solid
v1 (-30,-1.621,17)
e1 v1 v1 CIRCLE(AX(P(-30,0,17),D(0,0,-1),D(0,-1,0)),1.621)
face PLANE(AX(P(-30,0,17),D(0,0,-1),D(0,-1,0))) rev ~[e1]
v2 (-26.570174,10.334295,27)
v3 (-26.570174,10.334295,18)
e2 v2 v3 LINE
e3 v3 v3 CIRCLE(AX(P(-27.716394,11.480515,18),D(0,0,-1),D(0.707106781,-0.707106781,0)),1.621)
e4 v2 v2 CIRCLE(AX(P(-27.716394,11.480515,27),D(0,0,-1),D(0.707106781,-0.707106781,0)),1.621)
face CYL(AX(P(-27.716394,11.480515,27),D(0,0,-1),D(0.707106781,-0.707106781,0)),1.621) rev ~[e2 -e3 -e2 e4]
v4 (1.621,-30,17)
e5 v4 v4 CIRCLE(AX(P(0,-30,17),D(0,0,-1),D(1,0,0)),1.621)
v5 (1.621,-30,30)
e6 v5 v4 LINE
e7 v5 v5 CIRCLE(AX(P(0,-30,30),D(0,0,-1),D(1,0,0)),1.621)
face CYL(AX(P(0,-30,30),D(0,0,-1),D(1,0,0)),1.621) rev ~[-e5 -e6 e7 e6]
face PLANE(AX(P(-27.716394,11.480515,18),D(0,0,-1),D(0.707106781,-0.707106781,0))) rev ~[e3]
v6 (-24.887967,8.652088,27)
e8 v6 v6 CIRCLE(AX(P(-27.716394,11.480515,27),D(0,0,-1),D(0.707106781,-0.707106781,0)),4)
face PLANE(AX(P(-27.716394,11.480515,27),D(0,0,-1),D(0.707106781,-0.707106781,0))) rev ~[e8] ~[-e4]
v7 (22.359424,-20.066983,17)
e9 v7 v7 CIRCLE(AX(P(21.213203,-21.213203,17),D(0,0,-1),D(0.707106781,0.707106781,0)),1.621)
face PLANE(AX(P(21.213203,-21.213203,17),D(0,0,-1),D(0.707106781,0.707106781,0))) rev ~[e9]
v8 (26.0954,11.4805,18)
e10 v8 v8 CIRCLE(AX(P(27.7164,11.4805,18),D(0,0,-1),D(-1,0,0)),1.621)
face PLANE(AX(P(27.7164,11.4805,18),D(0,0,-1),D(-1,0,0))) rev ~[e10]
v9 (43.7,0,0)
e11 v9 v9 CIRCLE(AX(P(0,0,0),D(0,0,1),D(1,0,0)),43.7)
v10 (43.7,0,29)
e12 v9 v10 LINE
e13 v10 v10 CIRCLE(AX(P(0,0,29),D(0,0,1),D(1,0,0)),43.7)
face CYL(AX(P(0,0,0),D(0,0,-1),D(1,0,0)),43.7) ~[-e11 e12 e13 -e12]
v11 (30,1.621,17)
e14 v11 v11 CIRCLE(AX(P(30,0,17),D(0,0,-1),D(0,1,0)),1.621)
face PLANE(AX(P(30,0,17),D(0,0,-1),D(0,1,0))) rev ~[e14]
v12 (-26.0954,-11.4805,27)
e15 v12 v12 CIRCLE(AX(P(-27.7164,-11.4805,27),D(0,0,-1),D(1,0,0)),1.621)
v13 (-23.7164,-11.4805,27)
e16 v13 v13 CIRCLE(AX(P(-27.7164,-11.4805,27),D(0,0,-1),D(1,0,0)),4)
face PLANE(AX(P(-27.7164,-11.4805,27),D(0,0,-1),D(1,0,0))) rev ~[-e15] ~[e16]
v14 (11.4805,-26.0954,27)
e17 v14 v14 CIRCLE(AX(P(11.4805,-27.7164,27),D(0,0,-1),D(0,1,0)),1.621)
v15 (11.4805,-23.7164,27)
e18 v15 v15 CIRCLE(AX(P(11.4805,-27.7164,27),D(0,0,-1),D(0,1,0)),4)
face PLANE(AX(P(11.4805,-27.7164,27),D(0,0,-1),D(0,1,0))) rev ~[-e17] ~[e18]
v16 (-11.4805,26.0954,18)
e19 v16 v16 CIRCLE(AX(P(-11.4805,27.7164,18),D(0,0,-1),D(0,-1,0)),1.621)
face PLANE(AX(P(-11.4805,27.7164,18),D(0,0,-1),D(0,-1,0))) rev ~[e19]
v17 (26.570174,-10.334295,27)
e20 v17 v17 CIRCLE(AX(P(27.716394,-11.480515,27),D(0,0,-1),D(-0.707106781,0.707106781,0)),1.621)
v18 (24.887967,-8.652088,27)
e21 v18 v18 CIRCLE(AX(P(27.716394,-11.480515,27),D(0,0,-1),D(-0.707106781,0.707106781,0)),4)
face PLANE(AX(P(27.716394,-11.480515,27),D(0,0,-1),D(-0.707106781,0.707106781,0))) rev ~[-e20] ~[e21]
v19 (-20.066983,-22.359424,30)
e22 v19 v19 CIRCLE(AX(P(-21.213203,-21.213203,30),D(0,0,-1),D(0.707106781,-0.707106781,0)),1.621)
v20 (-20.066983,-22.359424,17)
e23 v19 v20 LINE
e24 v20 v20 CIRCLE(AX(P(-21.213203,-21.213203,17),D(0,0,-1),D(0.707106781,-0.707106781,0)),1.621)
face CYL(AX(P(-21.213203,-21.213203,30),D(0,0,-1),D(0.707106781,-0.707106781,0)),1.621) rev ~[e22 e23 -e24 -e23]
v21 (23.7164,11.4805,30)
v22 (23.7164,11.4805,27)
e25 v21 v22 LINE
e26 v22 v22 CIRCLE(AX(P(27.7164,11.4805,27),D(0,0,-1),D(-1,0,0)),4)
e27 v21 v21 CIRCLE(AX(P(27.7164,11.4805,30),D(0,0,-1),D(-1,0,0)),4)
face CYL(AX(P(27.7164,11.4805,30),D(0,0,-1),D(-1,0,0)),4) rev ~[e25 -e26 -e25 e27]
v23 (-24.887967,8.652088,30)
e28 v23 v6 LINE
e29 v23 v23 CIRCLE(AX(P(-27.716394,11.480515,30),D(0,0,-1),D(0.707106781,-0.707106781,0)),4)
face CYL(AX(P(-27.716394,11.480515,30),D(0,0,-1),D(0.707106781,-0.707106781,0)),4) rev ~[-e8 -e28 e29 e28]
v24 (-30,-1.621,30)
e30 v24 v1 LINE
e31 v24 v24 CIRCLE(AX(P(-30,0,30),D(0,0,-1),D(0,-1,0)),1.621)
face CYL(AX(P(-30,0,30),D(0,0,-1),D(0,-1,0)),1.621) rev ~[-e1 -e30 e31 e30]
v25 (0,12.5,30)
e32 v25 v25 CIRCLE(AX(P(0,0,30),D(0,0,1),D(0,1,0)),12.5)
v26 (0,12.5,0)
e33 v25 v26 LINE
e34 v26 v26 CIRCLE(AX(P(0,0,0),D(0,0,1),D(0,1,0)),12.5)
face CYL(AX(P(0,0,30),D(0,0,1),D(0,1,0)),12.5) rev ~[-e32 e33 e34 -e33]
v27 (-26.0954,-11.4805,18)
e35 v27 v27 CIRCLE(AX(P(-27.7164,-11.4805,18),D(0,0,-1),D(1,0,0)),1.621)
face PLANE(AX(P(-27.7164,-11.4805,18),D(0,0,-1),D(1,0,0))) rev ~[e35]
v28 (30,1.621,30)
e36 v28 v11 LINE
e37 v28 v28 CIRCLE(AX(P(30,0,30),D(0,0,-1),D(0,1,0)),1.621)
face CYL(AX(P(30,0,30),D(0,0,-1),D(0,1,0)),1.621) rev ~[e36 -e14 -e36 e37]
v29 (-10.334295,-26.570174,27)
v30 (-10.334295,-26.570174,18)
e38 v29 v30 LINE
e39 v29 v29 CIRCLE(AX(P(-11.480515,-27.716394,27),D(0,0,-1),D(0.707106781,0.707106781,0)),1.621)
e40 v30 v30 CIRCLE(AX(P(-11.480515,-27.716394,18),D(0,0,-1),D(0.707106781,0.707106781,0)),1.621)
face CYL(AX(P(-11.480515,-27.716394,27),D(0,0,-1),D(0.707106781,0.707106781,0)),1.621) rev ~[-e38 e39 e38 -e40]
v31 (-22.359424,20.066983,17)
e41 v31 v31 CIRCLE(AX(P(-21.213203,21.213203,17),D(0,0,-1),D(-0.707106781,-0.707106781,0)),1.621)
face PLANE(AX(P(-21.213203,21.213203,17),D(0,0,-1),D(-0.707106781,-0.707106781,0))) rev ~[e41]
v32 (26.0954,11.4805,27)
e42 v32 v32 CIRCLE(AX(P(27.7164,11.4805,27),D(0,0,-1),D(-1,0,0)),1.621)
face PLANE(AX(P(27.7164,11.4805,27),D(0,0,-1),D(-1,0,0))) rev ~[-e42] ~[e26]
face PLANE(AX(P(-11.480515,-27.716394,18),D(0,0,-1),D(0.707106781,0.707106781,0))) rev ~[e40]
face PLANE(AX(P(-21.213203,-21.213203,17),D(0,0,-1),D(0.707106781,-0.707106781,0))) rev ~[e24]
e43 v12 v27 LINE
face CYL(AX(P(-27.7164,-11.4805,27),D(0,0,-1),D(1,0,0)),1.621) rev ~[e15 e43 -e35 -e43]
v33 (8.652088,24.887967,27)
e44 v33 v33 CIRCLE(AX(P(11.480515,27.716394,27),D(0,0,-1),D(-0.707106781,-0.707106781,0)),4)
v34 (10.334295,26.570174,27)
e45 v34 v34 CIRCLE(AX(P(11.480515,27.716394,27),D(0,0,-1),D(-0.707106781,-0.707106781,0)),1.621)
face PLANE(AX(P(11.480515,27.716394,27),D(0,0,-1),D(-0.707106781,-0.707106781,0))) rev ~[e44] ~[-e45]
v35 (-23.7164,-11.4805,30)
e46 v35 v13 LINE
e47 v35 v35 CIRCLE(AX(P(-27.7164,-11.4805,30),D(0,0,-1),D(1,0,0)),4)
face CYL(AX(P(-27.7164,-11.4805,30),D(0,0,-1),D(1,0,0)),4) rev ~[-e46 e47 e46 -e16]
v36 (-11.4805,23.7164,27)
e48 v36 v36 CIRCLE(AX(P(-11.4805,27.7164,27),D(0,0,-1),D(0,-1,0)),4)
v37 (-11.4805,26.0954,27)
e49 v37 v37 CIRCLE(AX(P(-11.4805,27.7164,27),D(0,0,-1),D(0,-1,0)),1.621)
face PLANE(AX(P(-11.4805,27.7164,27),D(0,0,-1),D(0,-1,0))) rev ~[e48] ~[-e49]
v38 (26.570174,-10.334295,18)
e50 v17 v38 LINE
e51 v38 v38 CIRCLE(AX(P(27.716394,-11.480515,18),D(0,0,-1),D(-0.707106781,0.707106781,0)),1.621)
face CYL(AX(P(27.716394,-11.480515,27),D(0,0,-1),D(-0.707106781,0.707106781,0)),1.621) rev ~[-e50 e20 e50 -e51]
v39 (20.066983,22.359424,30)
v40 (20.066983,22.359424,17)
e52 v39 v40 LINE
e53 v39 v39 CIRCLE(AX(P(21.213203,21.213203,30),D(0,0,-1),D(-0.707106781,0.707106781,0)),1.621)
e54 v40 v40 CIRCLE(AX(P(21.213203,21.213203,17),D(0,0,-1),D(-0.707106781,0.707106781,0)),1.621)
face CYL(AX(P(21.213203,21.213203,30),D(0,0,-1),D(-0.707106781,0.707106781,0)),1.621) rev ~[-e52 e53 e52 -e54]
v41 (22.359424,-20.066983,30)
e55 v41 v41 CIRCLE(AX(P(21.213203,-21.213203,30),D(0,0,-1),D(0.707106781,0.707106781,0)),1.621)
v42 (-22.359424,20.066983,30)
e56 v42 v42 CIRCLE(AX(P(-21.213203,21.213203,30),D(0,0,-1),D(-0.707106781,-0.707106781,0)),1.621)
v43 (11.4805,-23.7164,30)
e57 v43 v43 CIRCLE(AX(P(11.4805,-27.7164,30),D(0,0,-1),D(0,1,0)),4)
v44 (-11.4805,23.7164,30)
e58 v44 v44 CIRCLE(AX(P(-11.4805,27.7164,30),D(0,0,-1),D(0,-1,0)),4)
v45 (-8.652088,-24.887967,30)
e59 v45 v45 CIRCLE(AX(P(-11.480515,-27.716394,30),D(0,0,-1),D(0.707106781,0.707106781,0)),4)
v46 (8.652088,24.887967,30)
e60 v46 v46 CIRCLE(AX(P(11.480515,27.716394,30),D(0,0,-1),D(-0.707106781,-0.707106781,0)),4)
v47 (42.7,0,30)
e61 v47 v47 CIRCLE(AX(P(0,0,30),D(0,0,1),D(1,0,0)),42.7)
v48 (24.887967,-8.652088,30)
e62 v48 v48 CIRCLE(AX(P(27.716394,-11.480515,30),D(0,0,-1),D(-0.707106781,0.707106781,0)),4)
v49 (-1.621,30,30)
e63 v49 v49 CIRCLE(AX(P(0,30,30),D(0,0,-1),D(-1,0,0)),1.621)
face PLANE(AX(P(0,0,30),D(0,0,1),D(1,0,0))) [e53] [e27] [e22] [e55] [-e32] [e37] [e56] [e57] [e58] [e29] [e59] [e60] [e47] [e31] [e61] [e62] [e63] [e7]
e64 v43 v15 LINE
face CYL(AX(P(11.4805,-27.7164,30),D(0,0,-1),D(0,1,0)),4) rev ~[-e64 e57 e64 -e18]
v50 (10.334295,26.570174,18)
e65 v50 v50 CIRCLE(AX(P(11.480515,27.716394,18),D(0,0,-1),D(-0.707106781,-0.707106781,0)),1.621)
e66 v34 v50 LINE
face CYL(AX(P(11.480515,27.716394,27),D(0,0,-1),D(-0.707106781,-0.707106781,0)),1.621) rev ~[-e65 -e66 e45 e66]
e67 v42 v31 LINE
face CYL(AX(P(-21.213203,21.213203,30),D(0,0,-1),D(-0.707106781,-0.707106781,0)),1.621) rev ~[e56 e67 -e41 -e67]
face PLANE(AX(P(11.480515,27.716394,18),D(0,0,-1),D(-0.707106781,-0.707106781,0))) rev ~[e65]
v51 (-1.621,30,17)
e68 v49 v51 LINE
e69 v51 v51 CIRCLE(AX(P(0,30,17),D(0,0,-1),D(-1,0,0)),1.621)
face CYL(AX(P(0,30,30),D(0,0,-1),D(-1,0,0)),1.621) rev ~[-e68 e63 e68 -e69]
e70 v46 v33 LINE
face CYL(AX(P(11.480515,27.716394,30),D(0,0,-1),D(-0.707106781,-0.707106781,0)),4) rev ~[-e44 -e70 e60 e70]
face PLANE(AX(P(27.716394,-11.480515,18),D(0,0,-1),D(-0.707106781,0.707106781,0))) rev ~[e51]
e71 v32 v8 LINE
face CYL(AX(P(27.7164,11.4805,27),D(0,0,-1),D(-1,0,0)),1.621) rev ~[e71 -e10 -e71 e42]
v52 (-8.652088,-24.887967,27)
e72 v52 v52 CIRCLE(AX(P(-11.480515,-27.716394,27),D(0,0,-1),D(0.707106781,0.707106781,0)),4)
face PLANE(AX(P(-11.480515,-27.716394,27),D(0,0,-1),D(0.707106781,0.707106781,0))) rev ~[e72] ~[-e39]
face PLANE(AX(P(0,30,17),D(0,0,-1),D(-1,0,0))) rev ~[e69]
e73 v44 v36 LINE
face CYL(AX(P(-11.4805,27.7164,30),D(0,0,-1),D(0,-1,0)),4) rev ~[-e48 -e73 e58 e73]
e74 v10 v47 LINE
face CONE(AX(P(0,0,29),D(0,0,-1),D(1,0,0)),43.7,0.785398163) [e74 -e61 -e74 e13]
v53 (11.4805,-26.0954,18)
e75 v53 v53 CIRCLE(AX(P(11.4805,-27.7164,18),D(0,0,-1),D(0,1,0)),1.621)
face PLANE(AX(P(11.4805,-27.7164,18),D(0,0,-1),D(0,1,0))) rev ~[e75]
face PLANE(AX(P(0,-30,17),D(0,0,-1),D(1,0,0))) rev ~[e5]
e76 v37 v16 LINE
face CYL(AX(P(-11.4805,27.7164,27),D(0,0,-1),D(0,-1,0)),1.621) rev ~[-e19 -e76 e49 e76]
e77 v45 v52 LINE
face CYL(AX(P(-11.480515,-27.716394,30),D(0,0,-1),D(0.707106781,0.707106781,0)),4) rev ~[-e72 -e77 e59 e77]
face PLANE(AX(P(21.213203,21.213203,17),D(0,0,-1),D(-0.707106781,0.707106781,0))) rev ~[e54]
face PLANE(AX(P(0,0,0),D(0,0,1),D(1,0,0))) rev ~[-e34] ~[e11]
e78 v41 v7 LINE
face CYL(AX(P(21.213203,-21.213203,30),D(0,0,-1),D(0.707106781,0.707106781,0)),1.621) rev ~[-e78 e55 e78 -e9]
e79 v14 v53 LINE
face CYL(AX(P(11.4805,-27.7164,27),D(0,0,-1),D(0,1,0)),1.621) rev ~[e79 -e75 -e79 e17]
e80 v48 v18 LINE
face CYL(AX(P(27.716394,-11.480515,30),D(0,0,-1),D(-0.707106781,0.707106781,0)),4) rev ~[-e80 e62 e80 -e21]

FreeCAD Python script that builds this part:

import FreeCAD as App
import Part
import Sketcher

V = App.Vector


def edges_at(feature, points):
    """Names of the edges that pass closest to the given points."""
    edges = feature.Shape.Edges
    near = lambda p: min(range(len(edges)), key=lambda i: edges[i].distToShape(Part.Vertex(*p))[0])
    return sorted({f"Edge{near(p) + 1}" for p in points})

doc = App.newDocument("Part")
params = doc.addObject("Spreadsheet::Sheet", "Params")
for row, (alias, value) in enumerate([
    ("sketch1_diameter", "87.4 mm"),
    ("pad1_length", "30 mm"),
    ("hole_diameter", "3.242 mm"),
    ("hole_depth", "13 mm"),
    ("sketch3_diameter", "25 mm"),
    ("hole2_diameter", "3.242 mm"),
    ("hole2_depth", "12 mm"),
    ("hole2_cbore_diameter", "8 mm"),
    ("hole2_cbore_depth", "3 mm"),
    ("chamfer_size", "1 mm"),
], start=1):
    params.set(f"A{row}", alias)
    params.set(f"B{row}", "=" + value)
    params.setAlias(f"B{row}", alias)

body = doc.addObject("PartDesign::Body", "Body")

sketch1 = body.newObject("Sketcher::SketchObject", "Sketch")
sketch1.AttachmentSupport = (doc.getObject("XY_Plane"), [""])
sketch1.MapMode = "FlatFace"
sketch1.addGeometry(Part.Circle(V(0, 0, 0), V(0, 0, 1), 44), False)
sketch1.addConstraint(Sketcher.Constraint("Coincident", 0, 3, -1, 1))
sketch1.addConstraint(Sketcher.Constraint("Diameter", 0, 87.4))
sketch1.setExpression("Constraints[1]", "Params.sketch1_diameter")
pad1 = body.newObject("PartDesign::Pad", "Pad")
pad1.Profile = sketch1
pad1.setExpression("Length", "Params.pad1_length")

sketch2 = body.newObject("Sketcher::SketchObject", "Sketch001")
sketch2.AttachmentSupport = (doc.getObject("XY_Plane"), [""])
sketch2.MapMode = "FlatFace"
sketch2.AttachmentOffset = App.Placement(V(0, 0, 30), App.Rotation())
sketch2.addGeometry(Part.Circle(V(-30, 0, 0), V(0, 0, 1), 1.6), False)
sketch2.addConstraint(Sketcher.Constraint("PointOnObject", 0, 3, -1))
sketch2.addConstraint(Sketcher.Constraint("Diameter", 0, 3.242))
sketch2.addConstraint(Sketcher.Constraint("DistanceX", 0, 3, -1, 1, 30.0))
doc.recompute()
hole = body.newObject("PartDesign::Hole", "Hole")
hole.Profile = sketch2
hole.ThreadType = "None"
hole.setExpression("Diameter", "Params.hole_diameter")
hole.DepthType = "Dimension"
hole.setExpression("Depth", "Params.hole_depth")
hole.DrillPoint = "Flat"
doc.recompute()

polarpattern = body.newObject("PartDesign::PolarPattern", "PolarPattern")
polarpattern.Originals = [hole]
polarpattern.Axis = (doc.getObject("Z_Axis"), [""])
polarpattern.Angle = 360
polarpattern.Occurrences = 8
body.Tip = polarpattern

sketch3 = body.newObject("Sketcher::SketchObject", "Sketch002")
sketch3.AttachmentSupport = (doc.getObject("XY_Plane"), [""])
sketch3.MapMode = "FlatFace"
sketch3.AttachmentOffset = App.Placement(V(0, 0, 30), App.Rotation())
sketch3.addGeometry(Part.Circle(V(0, 0, 0), V(0, 0, 1), 12), False)
sketch3.addConstraint(Sketcher.Constraint("Coincident", 0, 3, -1, 1))
sketch3.addConstraint(Sketcher.Constraint("Diameter", 0, 25.0))
sketch3.setExpression("Constraints[1]", "Params.sketch3_diameter")
pocket1 = body.newObject("PartDesign::Pocket", "Pocket")
pocket1.Profile = sketch3
pocket1.Type = "UpToFirst"

sketch4 = body.newObject("Sketcher::SketchObject", "Sketch003")
sketch4.AttachmentSupport = (doc.getObject("XY_Plane"), [""])
sketch4.MapMode = "FlatFace"
sketch4.AttachmentOffset = App.Placement(V(0, 0, 30), App.Rotation())
sketch4.addGeometry(Part.Circle(V(-11.5, 27.7, 0), V(0, 0, 1), 1.6), False)
sketch4.addConstraint(Sketcher.Constraint("Diameter", 0, 3.242))
sketch4.addConstraint(Sketcher.Constraint("DistanceX", 0, 3, -1, 1, 11.4805))
sketch4.addConstraint(Sketcher.Constraint("DistanceY", -1, 1, 0, 3, 27.7164))
doc.recompute()
hole2 = body.newObject("PartDesign::Hole", "Hole001")
hole2.Profile = sketch4
hole2.ThreadType = "None"
hole2.setExpression("Diameter", "Params.hole2_diameter")
hole2.DepthType = "Dimension"
hole2.setExpression("Depth", "Params.hole2_depth")
hole2.DrillPoint = "Flat"
hole2.HoleCutType = "Counterbore"
hole2.setExpression("HoleCutDiameter", "Params.hole2_cbore_diameter")
hole2.setExpression("HoleCutDepth", "Params.hole2_cbore_depth")
doc.recompute()

polarpattern2 = body.newObject("PartDesign::PolarPattern", "PolarPattern001")
polarpattern2.Originals = [hole2]
polarpattern2.Axis = (doc.getObject("Z_Axis"), [""])
polarpattern2.Angle = 360
polarpattern2.Occurrences = 8
body.Tip = polarpattern2
doc.recompute()

chamfer = body.newObject("PartDesign::Chamfer", "Chamfer")
chamfer.Base = (polarpattern2, edges_at(polarpattern2, [(-43.7, 0, 30)]))
chamfer.setExpression("Size", "Params.chamfer_size")

doc.recompute()
